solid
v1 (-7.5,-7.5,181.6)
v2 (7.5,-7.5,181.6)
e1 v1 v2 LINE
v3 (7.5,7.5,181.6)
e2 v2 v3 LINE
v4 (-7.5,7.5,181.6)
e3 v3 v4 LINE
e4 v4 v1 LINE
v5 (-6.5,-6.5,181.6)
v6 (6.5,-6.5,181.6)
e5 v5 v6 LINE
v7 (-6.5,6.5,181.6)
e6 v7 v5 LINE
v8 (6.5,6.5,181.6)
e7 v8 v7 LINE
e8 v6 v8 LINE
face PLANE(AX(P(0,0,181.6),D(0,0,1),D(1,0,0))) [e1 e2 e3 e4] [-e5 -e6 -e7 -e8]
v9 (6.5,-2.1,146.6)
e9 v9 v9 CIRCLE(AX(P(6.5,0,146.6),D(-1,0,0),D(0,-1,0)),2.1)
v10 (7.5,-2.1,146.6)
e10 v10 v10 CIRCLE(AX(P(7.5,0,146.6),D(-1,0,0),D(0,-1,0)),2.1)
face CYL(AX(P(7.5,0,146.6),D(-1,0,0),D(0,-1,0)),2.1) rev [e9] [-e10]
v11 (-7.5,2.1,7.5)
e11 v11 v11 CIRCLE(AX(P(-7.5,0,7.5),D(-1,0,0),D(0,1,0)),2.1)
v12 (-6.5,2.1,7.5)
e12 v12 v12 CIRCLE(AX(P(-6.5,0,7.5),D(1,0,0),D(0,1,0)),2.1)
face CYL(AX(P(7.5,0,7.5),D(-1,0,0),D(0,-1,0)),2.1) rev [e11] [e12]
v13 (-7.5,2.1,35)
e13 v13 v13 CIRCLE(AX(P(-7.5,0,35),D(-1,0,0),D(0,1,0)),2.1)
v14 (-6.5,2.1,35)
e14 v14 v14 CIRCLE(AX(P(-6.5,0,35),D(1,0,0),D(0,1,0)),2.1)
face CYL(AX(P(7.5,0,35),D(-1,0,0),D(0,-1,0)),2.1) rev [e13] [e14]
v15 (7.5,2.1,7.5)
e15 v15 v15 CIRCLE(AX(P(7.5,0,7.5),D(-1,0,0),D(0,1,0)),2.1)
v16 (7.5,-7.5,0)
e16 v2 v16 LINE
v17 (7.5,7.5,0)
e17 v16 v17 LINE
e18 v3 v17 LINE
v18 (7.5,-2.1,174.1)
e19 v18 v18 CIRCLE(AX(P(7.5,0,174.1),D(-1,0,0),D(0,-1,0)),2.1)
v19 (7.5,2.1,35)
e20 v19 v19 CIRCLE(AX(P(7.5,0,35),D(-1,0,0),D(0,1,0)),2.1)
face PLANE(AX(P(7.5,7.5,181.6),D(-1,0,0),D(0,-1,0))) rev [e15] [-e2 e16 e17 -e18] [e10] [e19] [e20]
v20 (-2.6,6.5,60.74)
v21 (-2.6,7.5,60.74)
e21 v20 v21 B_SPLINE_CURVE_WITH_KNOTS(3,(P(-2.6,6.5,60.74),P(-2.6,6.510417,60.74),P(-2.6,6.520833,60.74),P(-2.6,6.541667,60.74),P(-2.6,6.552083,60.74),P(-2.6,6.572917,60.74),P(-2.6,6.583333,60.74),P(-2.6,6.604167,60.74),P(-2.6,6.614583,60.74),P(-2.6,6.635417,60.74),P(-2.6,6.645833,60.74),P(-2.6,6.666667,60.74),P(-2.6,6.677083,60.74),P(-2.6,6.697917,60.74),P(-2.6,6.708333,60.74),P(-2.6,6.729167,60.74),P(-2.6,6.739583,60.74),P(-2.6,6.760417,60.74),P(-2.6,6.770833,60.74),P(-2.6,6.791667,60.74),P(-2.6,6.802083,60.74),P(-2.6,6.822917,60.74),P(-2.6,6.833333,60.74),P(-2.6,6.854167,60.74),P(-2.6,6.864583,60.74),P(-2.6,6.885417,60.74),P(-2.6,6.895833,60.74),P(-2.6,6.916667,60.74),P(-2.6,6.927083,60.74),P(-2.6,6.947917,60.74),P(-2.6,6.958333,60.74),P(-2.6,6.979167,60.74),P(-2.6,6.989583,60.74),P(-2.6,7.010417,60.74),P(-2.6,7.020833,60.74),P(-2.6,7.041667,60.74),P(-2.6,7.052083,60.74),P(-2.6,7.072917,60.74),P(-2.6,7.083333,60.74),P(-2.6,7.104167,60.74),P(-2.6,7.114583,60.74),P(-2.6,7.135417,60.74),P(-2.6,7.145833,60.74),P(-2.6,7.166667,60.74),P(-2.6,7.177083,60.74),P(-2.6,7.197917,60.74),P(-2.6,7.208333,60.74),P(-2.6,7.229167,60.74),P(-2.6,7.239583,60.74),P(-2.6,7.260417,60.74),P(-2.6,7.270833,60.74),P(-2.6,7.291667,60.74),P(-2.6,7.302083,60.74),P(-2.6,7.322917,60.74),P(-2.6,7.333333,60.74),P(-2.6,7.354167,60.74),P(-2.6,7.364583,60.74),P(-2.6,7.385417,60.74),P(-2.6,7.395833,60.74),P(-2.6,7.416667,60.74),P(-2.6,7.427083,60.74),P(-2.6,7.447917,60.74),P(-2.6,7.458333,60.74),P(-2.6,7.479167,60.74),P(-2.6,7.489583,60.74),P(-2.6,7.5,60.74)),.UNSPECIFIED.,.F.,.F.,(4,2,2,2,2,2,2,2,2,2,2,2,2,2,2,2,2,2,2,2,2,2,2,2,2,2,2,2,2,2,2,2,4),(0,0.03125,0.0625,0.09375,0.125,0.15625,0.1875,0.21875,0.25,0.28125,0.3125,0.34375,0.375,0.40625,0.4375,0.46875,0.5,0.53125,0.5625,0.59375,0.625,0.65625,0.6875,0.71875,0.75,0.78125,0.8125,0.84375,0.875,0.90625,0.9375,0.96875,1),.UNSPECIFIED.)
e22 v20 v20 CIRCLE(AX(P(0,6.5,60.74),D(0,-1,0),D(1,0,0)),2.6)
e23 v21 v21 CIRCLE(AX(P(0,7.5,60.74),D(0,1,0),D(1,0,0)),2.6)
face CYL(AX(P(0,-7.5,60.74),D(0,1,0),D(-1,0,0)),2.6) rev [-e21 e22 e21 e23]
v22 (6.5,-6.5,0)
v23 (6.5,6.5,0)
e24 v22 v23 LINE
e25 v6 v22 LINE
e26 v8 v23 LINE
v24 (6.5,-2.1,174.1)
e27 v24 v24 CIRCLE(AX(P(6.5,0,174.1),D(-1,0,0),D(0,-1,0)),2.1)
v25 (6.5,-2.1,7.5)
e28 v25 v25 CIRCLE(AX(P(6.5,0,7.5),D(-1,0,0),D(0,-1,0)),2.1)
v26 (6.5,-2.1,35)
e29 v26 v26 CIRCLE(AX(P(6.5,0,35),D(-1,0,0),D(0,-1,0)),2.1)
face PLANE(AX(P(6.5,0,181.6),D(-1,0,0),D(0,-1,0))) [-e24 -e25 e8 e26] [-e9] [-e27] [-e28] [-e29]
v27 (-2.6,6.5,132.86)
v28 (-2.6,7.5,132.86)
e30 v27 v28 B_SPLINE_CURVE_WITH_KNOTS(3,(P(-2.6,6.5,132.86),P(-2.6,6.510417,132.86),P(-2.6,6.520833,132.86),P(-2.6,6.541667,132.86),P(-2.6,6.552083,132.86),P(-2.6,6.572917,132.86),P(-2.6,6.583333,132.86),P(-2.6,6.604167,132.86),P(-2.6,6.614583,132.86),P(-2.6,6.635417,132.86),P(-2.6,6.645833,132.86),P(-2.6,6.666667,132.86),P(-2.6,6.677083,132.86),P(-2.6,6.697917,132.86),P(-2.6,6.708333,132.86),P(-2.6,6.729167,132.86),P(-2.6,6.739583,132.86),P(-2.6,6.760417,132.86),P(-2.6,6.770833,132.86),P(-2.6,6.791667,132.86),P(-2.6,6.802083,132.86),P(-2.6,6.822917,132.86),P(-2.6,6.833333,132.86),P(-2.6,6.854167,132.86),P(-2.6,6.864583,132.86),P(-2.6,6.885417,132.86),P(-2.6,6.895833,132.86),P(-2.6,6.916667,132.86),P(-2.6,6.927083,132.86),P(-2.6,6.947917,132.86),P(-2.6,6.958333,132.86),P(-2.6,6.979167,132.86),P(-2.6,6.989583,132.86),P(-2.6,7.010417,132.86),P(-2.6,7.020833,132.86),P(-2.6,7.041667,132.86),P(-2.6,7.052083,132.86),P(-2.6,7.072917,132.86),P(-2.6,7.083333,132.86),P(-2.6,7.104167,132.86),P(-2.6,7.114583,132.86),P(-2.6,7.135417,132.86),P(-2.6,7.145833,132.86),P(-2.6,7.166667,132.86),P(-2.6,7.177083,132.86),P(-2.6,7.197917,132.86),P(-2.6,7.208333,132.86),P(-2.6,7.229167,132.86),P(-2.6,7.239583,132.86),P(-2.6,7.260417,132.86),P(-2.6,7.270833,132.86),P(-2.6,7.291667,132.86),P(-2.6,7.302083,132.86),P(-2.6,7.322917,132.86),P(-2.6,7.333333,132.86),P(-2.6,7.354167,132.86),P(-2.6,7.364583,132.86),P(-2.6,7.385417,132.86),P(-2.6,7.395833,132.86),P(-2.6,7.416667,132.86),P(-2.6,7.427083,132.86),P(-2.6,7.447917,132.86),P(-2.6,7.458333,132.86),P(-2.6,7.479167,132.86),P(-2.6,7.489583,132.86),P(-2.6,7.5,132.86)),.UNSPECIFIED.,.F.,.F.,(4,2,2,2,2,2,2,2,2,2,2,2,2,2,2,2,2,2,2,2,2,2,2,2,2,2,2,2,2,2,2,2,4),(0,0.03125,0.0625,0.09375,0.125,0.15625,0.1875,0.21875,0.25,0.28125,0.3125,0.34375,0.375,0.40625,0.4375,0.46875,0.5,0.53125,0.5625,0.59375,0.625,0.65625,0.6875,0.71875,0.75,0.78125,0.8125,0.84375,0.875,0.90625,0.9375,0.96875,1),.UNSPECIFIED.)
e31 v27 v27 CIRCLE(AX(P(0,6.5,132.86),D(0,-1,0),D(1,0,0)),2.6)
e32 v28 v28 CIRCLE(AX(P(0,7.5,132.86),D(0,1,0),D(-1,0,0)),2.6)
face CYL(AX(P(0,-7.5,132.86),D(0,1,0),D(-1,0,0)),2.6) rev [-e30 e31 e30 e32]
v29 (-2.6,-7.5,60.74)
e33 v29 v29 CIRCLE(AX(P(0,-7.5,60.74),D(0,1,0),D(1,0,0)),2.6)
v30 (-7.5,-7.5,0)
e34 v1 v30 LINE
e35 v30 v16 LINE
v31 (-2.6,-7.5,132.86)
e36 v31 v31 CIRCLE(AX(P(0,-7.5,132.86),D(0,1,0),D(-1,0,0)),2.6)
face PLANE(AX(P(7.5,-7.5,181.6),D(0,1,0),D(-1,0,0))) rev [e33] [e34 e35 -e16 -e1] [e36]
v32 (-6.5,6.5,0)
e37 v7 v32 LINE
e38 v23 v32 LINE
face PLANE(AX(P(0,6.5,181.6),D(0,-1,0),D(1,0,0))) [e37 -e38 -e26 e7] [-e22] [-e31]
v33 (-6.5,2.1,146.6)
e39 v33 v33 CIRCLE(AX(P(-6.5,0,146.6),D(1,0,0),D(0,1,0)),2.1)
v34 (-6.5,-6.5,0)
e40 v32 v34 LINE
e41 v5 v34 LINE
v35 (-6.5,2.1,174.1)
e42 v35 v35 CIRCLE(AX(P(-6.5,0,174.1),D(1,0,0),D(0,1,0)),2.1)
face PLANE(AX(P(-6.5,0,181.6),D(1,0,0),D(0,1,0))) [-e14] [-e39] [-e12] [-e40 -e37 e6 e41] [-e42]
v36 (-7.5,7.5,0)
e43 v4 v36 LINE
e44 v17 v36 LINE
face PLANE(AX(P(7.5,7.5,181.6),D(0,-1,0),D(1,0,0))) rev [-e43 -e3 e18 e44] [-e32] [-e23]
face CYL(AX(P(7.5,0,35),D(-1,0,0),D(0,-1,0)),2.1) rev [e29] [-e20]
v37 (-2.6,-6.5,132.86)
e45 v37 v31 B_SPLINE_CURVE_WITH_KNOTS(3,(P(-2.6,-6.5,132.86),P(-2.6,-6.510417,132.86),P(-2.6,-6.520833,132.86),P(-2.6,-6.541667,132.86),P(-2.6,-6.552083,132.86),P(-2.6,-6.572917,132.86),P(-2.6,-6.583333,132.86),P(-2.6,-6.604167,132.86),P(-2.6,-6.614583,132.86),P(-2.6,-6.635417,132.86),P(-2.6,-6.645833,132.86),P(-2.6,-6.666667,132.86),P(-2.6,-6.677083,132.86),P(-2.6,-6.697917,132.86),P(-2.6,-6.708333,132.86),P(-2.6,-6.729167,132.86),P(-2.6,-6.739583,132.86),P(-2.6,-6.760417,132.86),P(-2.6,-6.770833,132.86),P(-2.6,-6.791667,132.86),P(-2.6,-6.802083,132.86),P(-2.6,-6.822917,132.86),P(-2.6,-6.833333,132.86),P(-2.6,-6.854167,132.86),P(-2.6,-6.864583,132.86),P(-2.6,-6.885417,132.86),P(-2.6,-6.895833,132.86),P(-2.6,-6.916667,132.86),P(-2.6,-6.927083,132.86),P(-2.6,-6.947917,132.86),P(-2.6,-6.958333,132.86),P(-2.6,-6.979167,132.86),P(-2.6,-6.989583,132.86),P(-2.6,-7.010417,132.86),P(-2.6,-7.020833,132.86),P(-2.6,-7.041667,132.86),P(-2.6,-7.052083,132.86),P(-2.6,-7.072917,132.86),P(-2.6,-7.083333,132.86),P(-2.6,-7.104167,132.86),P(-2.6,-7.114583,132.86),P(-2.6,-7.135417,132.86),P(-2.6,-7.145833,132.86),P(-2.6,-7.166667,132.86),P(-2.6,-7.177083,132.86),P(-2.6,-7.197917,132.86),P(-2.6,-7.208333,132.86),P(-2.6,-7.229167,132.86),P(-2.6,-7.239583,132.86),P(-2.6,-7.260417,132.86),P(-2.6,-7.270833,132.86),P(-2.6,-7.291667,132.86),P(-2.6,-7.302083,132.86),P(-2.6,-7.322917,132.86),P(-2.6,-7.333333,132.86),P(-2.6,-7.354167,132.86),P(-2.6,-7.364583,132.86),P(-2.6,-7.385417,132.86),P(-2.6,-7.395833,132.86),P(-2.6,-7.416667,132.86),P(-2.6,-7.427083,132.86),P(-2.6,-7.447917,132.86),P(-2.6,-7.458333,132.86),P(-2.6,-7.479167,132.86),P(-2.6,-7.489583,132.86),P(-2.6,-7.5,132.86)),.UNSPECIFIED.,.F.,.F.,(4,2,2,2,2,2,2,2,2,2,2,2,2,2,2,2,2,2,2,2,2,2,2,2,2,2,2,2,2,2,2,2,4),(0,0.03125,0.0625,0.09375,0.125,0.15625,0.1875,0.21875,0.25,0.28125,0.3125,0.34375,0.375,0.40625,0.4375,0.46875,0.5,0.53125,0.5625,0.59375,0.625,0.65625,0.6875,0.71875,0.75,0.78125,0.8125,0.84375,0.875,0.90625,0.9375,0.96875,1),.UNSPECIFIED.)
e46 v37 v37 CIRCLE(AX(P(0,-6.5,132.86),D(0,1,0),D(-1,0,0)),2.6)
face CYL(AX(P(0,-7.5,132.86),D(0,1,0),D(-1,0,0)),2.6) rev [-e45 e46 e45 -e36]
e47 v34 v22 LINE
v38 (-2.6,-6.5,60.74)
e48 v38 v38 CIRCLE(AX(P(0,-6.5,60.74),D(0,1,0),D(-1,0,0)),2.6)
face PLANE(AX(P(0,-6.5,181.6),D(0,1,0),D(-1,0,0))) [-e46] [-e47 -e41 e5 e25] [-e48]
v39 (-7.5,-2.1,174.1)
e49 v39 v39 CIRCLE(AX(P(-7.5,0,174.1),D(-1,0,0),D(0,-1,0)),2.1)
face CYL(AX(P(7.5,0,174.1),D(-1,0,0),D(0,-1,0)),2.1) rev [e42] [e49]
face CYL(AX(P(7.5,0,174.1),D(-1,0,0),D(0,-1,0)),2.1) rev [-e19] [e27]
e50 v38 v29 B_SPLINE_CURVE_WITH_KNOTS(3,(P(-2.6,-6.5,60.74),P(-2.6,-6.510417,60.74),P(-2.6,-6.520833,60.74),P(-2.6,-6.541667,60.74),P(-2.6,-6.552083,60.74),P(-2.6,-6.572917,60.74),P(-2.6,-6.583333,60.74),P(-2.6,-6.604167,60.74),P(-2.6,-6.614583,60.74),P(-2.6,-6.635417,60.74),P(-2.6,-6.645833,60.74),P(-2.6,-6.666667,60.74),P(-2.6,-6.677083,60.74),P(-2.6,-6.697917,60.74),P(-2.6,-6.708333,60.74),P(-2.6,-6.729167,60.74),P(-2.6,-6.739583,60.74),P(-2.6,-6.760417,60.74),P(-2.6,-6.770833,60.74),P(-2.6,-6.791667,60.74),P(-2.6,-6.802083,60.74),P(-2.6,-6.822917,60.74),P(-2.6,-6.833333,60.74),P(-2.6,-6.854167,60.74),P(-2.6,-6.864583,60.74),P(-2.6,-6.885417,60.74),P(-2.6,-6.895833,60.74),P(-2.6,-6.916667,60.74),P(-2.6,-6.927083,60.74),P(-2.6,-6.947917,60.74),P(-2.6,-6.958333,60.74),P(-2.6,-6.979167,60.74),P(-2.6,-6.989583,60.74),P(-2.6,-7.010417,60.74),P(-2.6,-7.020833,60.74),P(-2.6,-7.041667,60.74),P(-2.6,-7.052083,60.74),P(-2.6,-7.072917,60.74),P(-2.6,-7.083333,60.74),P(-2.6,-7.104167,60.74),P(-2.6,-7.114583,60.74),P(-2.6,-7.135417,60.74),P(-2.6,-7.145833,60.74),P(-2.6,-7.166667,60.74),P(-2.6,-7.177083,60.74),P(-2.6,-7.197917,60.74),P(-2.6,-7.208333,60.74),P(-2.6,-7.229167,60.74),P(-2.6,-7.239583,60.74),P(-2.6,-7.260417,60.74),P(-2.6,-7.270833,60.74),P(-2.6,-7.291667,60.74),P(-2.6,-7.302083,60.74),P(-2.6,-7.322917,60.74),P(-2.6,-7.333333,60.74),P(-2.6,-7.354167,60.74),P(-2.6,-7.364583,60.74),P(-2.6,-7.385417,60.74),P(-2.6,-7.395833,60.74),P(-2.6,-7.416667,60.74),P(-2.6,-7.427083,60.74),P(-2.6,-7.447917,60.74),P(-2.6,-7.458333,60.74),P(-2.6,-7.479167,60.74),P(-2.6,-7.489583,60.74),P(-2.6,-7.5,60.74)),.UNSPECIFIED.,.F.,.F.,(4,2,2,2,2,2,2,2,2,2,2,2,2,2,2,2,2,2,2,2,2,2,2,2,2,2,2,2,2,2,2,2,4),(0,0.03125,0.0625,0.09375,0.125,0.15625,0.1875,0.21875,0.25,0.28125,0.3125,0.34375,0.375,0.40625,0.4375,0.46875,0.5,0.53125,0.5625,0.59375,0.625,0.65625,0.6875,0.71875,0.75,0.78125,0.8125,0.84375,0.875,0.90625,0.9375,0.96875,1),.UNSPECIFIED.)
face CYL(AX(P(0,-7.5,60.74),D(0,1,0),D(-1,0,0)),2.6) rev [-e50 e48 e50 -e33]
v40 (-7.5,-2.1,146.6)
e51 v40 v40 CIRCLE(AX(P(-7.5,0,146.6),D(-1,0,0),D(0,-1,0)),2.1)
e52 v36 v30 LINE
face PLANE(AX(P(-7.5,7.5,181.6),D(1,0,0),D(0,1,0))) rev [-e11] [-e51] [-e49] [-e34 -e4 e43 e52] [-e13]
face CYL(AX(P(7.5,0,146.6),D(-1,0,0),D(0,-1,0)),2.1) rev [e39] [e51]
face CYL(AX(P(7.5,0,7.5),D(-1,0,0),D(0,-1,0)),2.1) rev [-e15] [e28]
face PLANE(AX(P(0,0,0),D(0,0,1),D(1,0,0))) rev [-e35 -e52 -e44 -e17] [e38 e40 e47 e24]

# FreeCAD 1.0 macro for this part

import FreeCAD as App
import Part
import Sketcher
from FreeCAD import Vector

doc = App.newDocument("Part")
body = doc.addObject("PartDesign::Body", "Body")

# Sketch on XY plane
sketch1 = body.newObject("Sketcher::SketchObject", "Sketch")
sketch1.AttachmentSupport = (doc.getObject("XY_Plane"), [""])
sketch1.MapMode = "FlatFace"
sketch1.addGeometry([
    Part.LineSegment(Vector(-8, 8, 0), Vector(-8, -8, 0)),  # 0
    Part.LineSegment(Vector(-8, -8, 0), Vector(8, -8, 0)),  # 1
    Part.LineSegment(Vector(8, -8, 0), Vector(8, 8, 0)),  # 2
    Part.LineSegment(Vector(8, 8, 0), Vector(-8, 8, 0)),  # 3
    Part.LineSegment(Vector(6, -6, 0), Vector(-6, -6, 0)),  # 4
    Part.LineSegment(Vector(-6, -6, 0), Vector(-6, 6, 0)),  # 5
    Part.LineSegment(Vector(-6, 6, 0), Vector(6, 6, 0)),  # 6
    Part.LineSegment(Vector(6, 6, 0), Vector(6, -6, 0)),  # 7
], False)
sketch1.addConstraint([
    Sketcher.Constraint("Coincident", 0, 2, 1, 1),
    Sketcher.Constraint("Coincident", 1, 2, 2, 1),
    Sketcher.Constraint("Coincident", 2, 2, 3, 1),
    Sketcher.Constraint("Coincident", 3, 2, 0, 1),
    Sketcher.Constraint("Coincident", 4, 2, 5, 1),
    Sketcher.Constraint("Coincident", 5, 2, 6, 1),
    Sketcher.Constraint("Coincident", 6, 2, 7, 1),
    Sketcher.Constraint("Coincident", 7, 2, 4, 1),
    Sketcher.Constraint("Vertical", 0),
    Sketcher.Constraint("Horizontal", 1),
    Sketcher.Constraint("Vertical", 2),
    Sketcher.Constraint("Horizontal", 3),
    Sketcher.Constraint("Horizontal", 4),
    Sketcher.Constraint("Vertical", 5),
    Sketcher.Constraint("Horizontal", 6),
    Sketcher.Constraint("Vertical", 7),
    Sketcher.Constraint("Symmetric", 0, 2, 2, 2, -1, 1),
    Sketcher.Constraint("Symmetric", 4, 2, 6, 2, -1, 1),
    Sketcher.Constraint("Equal", 3, 0),
    Sketcher.Constraint("Equal", 6, 5),
    Sketcher.Constraint("DistanceX", 1, 1, 1, 2, 15.0),
    Sketcher.Constraint("DistanceX", 4, 2, 4, 1, 13.0),
])
pad1 = body.newObject("PartDesign::Pad", "Pad")
pad1.Profile = sketch1
pad1.Length = 181.6

# Sketch on XZ plane
sketch2 = body.newObject("Sketcher::SketchObject", "Sketch001")
sketch2.AttachmentSupport = (doc.getObject("XZ_Plane"), [""])
sketch2.MapMode = "FlatFace"
sketch2.AttachmentOffset = App.Placement(Vector(0, 0, -7.5), App.Rotation())
sketch2.addGeometry([
    Part.Circle(Vector(0, 132.9, 0), Vector(0, 0, 1), 2.6),
    Part.Circle(Vector(0, 60.7, 0), Vector(0, 0, 1), 2.6),
], False)
sketch2.addConstraint([
    Sketcher.Constraint("Equal", 0, 1),
    Sketcher.Constraint("PointOnObject", 0, 3, -2),
    Sketcher.Constraint("PointOnObject", 1, 3, -2),
    Sketcher.Constraint("Diameter", 0, 5.2),
    Sketcher.Constraint("DistanceY", -1, 1, 0, 3, 132.86),
    Sketcher.Constraint("DistanceY", -1, 1, 1, 3, 60.74),
])
pocket1 = body.newObject("PartDesign::Pocket", "Pocket")
pocket1.Profile = sketch2
pocket1.Type = "ThroughAll"
pocket1.Reversed = True

# Sketch on YZ plane
sketch3 = body.newObject("Sketcher::SketchObject", "Sketch002")
sketch3.AttachmentSupport = (doc.getObject("YZ_Plane"), [""])
sketch3.MapMode = "FlatFace"
sketch3.AttachmentOffset = App.Placement(Vector(0, 0, -7.5), App.Rotation())
sketch3.addGeometry([
    Part.Circle(Vector(0, 174.1, 0), Vector(0, 0, 1), 2.1),
    Part.Circle(Vector(0, 146.6, 0), Vector(0, 0, 1), 2.1),
    Part.Circle(Vector(0, 35, 0), Vector(0, 0, 1), 2.1),
    Part.Circle(Vector(0, 7.5, 0), Vector(0, 0, 1), 2.1),
], False)
sketch3.addConstraint([
    Sketcher.Constraint("Equal", 0, 1),
    Sketcher.Constraint("Equal", 1, 2),
    Sketcher.Constraint("Equal", 2, 3),
    Sketcher.Constraint("PointOnObject", 0, 3, -2),
    Sketcher.Constraint("PointOnObject", 1, 3, -2),
    Sketcher.Constraint("PointOnObject", 2, 3, -2),
    Sketcher.Constraint("PointOnObject", 3, 3, -2),
    Sketcher.Constraint("Diameter", 0, 4.2),
    Sketcher.Constraint("DistanceY", -1, 1, 2, 3, 35.0),
    Sketcher.Constraint("DistanceY", -1, 1, 0, 3, 174.1),
    Sketcher.Constraint("DistanceY", -1, 1, 1, 3, 146.6),
    Sketcher.Constraint("DistanceY", -1, 1, 3, 3, 7.5),
])
pocket2 = body.newObject("PartDesign::Pocket", "Pocket001")
pocket2.Profile = sketch3
pocket2.Type = "ThroughAll"
pocket2.Reversed = True

doc.recompute()
